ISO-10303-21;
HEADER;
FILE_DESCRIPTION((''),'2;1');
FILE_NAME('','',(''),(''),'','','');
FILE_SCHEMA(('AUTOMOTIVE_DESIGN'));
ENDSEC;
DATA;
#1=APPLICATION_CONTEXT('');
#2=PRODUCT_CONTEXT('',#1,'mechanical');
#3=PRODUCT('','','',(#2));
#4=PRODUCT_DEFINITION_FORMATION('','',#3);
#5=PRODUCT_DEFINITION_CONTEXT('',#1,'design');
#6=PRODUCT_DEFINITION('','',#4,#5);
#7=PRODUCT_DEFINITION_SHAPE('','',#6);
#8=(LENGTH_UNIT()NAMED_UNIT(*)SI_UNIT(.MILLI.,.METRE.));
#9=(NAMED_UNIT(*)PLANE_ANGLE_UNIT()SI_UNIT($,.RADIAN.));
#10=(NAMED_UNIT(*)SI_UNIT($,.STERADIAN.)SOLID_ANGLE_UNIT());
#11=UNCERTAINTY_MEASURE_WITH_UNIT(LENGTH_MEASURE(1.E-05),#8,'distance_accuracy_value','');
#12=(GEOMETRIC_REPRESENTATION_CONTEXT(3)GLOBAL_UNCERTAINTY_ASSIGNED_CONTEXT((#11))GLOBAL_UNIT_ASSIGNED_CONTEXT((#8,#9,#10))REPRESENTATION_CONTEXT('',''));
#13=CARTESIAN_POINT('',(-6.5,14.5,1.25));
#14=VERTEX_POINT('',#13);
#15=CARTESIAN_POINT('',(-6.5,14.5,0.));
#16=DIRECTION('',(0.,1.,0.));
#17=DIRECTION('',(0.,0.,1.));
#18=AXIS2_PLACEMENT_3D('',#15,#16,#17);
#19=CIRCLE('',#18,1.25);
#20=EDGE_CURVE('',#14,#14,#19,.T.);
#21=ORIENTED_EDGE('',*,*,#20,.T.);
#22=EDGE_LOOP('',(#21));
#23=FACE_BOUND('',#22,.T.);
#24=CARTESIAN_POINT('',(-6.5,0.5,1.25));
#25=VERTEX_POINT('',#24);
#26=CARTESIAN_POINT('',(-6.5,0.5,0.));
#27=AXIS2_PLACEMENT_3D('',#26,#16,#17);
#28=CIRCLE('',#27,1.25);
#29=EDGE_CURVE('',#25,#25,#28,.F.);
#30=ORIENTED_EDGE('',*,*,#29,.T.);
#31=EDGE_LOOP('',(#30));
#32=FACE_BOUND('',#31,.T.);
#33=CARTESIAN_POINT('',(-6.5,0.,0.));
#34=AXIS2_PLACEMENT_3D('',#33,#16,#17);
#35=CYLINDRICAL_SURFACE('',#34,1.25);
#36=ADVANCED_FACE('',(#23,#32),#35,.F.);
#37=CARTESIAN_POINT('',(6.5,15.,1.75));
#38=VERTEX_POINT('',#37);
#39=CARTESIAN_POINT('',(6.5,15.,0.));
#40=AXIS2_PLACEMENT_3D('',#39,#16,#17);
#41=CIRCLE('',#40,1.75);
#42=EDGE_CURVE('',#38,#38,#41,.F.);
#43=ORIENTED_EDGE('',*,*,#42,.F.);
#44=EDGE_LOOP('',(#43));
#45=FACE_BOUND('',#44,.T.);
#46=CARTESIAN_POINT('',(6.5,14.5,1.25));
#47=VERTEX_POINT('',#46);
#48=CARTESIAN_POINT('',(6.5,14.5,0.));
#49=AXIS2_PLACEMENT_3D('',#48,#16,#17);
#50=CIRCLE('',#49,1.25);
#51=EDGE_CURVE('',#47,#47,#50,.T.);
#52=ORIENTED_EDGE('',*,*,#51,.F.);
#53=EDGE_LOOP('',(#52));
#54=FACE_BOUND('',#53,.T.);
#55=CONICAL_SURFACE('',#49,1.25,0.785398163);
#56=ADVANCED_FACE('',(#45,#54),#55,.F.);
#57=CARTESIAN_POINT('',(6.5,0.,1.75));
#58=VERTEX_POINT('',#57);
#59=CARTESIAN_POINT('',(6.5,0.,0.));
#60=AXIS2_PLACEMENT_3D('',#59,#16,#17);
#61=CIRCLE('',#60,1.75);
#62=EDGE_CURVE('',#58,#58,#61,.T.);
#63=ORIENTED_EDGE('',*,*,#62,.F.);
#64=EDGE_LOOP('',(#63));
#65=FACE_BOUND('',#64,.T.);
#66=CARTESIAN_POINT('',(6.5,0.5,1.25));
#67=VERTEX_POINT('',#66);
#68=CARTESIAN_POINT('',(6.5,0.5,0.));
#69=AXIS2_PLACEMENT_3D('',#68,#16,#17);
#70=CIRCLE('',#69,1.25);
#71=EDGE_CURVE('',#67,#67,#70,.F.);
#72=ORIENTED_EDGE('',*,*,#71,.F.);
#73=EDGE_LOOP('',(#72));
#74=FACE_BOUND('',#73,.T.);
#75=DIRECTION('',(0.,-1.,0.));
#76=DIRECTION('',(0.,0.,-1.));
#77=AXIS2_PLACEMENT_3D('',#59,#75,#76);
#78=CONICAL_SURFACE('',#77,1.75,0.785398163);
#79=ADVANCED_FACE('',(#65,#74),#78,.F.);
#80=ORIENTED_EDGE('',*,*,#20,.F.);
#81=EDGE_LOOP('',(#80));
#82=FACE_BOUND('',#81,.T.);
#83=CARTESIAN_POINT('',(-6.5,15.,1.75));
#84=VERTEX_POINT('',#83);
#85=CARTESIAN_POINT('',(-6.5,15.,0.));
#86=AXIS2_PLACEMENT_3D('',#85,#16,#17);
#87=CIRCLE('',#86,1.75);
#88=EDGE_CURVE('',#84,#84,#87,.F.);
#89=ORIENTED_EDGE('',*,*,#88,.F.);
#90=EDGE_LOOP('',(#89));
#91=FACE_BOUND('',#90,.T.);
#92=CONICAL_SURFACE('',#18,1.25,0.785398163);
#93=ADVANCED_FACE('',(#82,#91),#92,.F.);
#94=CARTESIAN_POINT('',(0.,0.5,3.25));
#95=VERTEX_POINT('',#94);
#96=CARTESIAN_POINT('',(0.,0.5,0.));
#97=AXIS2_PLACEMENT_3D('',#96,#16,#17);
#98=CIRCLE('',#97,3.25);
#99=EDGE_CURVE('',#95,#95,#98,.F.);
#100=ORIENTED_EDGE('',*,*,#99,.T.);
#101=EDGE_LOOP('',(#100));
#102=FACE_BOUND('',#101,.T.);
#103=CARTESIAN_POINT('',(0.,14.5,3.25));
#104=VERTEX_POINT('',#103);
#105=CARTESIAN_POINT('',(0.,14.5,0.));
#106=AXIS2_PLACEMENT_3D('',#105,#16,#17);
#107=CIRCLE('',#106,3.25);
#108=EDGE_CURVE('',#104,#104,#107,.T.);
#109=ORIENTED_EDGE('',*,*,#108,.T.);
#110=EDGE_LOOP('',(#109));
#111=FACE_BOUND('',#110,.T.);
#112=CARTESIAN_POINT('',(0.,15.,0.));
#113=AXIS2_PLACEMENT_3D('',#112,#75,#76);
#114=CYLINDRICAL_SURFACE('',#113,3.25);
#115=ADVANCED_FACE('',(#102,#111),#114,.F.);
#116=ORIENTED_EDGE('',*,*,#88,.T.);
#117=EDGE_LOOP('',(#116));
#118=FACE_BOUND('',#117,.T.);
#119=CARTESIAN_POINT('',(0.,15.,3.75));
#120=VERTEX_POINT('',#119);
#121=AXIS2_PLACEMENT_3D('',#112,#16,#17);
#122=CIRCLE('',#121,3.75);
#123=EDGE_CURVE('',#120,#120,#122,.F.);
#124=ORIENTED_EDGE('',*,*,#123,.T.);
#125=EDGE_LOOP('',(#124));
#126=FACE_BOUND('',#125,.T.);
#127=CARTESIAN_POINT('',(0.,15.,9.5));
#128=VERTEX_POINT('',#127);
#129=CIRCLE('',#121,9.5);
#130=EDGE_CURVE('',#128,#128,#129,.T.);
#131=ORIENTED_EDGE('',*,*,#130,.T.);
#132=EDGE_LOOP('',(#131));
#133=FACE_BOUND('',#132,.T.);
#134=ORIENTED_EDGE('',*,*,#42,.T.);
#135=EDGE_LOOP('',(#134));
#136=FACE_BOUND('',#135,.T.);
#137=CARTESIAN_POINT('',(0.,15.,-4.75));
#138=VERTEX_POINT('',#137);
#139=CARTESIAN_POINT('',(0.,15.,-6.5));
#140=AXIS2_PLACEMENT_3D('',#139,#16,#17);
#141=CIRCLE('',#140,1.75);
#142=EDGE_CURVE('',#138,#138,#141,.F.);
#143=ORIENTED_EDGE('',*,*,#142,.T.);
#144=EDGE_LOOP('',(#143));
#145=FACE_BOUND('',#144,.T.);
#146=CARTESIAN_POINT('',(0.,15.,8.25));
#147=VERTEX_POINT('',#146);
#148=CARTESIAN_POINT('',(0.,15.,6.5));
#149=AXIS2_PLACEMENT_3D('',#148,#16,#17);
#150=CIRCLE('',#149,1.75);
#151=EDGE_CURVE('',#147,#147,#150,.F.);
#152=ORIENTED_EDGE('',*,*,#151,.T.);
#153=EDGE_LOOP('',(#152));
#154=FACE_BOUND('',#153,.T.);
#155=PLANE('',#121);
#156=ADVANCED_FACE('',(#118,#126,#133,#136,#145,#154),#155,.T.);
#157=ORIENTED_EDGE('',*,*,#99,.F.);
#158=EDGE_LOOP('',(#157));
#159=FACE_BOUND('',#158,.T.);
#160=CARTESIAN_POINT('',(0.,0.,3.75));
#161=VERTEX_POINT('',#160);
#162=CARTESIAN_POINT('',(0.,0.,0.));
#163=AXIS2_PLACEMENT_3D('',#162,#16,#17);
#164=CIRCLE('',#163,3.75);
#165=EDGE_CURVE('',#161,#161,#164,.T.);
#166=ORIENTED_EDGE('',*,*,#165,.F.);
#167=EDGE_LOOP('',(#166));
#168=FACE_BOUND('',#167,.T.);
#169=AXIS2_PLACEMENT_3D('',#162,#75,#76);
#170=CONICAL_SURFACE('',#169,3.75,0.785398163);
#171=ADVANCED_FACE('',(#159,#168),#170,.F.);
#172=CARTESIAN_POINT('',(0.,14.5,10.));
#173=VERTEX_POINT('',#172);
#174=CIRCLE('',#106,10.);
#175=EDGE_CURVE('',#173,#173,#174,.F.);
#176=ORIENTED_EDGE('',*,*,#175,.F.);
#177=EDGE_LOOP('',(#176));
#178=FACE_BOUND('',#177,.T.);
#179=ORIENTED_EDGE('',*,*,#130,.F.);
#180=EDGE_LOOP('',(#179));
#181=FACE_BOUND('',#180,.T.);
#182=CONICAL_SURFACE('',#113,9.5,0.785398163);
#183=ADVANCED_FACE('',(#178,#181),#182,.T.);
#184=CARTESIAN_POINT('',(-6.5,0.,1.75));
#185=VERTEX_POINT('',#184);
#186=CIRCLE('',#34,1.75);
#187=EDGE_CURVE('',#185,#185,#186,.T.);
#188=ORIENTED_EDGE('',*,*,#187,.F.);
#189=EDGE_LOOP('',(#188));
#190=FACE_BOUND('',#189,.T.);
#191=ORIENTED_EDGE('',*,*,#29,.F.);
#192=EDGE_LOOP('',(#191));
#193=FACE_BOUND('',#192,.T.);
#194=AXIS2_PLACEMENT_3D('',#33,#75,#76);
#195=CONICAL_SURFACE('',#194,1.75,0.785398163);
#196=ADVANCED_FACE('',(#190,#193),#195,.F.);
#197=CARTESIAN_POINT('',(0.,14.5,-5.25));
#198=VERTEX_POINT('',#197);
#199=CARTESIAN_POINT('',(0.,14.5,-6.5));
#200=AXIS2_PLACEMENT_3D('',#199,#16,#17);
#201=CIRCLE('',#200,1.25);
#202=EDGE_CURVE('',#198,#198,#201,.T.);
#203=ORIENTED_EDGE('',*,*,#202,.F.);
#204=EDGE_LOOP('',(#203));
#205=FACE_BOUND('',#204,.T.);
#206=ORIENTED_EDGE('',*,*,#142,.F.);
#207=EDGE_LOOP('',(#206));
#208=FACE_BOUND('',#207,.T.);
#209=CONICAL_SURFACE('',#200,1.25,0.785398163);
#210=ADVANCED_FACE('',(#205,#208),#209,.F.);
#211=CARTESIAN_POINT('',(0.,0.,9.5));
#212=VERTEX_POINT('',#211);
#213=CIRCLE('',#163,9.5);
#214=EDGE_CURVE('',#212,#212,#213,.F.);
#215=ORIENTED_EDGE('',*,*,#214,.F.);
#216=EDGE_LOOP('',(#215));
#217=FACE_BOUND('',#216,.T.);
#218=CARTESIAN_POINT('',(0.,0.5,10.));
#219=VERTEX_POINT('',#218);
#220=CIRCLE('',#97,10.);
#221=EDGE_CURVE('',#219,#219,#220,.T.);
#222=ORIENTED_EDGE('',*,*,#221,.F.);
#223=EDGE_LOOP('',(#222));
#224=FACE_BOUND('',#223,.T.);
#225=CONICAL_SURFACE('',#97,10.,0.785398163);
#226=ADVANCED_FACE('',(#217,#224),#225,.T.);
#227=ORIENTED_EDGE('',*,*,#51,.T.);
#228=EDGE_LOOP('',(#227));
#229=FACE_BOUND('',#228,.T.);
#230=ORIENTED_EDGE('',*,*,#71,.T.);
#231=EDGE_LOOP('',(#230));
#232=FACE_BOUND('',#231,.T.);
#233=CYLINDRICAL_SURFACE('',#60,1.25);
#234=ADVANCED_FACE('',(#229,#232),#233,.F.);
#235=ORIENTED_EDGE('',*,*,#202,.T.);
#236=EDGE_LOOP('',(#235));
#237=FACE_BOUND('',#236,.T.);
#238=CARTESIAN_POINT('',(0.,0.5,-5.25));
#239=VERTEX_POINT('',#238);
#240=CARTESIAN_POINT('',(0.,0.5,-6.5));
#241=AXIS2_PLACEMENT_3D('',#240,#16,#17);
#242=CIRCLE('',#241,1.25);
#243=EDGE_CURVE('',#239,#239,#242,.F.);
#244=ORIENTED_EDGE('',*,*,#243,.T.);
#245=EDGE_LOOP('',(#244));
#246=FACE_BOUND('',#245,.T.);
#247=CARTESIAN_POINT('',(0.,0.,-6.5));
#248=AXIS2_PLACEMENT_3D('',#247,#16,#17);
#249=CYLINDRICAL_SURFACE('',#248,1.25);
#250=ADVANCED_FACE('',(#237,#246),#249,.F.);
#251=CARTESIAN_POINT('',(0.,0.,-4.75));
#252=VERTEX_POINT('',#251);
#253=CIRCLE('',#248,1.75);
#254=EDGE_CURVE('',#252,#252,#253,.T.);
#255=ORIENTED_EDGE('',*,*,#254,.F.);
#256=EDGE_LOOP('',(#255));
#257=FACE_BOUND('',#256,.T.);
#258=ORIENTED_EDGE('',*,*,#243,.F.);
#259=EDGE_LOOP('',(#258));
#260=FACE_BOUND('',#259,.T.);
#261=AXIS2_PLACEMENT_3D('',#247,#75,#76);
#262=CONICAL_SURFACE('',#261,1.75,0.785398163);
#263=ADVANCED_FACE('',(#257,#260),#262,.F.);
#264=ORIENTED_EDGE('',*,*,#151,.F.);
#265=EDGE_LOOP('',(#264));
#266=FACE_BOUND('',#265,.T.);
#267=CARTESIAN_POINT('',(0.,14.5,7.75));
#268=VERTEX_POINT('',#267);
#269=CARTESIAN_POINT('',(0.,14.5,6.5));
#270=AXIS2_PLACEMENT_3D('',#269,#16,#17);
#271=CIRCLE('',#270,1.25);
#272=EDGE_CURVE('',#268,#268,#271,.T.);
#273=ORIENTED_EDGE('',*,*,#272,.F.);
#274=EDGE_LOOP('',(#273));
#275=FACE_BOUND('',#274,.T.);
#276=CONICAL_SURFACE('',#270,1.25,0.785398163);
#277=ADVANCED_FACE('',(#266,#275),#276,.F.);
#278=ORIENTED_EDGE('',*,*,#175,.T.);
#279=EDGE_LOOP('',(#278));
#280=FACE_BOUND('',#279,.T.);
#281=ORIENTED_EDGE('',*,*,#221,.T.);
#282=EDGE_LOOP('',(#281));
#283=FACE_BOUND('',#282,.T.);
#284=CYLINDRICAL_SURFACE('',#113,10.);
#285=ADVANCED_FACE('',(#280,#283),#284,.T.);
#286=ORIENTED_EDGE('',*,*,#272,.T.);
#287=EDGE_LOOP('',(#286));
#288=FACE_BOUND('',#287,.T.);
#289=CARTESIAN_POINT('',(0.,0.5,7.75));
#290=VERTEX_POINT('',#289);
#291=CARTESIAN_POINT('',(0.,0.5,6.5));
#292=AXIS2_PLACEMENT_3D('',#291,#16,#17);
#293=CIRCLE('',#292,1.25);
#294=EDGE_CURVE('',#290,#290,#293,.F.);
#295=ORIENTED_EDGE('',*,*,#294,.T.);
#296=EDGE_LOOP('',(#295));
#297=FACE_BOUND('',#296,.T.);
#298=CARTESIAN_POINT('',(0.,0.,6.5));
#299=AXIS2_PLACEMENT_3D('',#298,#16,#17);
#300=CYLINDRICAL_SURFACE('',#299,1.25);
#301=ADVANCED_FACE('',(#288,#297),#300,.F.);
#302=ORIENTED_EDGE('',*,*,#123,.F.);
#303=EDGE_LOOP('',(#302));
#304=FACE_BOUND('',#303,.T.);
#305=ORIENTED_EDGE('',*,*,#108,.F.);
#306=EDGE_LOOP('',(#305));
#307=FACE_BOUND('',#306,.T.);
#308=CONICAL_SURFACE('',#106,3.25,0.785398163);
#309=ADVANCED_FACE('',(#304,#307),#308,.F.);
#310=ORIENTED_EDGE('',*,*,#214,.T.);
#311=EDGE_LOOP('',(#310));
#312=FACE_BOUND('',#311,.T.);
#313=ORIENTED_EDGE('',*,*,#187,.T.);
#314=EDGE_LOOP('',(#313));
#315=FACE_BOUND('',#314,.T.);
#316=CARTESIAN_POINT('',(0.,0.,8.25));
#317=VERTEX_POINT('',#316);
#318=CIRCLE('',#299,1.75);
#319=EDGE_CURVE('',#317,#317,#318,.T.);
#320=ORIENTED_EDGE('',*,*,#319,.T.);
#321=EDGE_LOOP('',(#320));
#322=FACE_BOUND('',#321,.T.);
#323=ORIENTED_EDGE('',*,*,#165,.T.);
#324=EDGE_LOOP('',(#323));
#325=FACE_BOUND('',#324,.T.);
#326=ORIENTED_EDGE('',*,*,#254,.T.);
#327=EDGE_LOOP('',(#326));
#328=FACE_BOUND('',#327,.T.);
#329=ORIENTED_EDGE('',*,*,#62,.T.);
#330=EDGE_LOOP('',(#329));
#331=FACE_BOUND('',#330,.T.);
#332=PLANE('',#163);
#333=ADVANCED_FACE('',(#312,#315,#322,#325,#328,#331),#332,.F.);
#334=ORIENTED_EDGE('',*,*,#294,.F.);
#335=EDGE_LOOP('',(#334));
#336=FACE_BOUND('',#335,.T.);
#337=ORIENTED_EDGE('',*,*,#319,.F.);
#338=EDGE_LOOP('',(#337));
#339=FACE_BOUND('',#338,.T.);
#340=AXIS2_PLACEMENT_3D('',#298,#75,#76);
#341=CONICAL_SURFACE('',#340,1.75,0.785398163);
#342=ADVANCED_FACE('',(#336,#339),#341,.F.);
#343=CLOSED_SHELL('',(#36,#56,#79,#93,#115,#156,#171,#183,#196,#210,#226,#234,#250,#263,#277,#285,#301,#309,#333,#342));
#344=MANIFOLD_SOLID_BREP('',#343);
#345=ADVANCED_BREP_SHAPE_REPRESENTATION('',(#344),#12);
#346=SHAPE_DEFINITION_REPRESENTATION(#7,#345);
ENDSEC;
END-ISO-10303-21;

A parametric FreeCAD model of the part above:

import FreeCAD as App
import Part
import Sketcher


def edges_at(feature, points):
    """Names of the edges that pass closest to the given points."""
    edges = feature.Shape.Edges
    near = lambda p: min(range(len(edges)), key=lambda i: edges[i].distToShape(Part.Vertex(*p))[0])
    return sorted({f"Edge{near(p) + 1}" for p in points})

doc = App.newDocument("Part")
body = doc.addObject("PartDesign::Body", "Body")

sketch1 = body.newObject("Sketcher::SketchObject", "Sketch")
sketch1.AttachmentSupport = (doc.getObject("XZ_Plane"), [""])
sketch1.MapMode = "FlatFace"
sketch1.addGeometry([
    Part.Circle(App.Vector(0, 0, 0), App.Vector(0, 0, 1), 10),
    Part.Circle(App.Vector(0, 0, 0), App.Vector(0, 0, 1), 3.2),
], False)
sketch1.addConstraint([
    Sketcher.Constraint("Coincident", 0, 3, -1, 1),
    Sketcher.Constraint("Coincident", 1, 3, -1, 1),
    Sketcher.Constraint("Diameter", 0, 20.0),
    Sketcher.Constraint("Diameter", 1, 6.5),
])
pad1 = body.newObject("PartDesign::Pad", "Pad")
pad1.Profile = sketch1
pad1.Length = 15
pad1.Reversed = True

sketch2 = body.newObject("Sketcher::SketchObject", "Sketch001")
sketch2.AttachmentSupport = (doc.getObject("XZ_Plane"), [""])
sketch2.MapMode = "FlatFace"
sketch2.AttachmentOffset = App.Placement(App.Vector(0, 0, -15), App.Rotation())
sketch2.addGeometry(Part.Circle(App.Vector(-6.5, 0, 0), App.Vector(0, 0, 1), 1.2), False)
sketch2.addConstraint([
    Sketcher.Constraint("PointOnObject", 0, 3, -1),
    Sketcher.Constraint("Diameter", 0, 2.5),
    Sketcher.Constraint("DistanceX", 0, 3, -1, 1, 6.5),
])
pocket1 = body.newObject("PartDesign::Pocket", "Pocket")
pocket1.Profile = sketch2
pocket1.Length = 15
pocket1.Reversed = True
doc.recompute()

polarpattern = body.newObject("PartDesign::PolarPattern", "PolarPattern")
polarpattern.Originals = [pocket1]
polarpattern.Axis = (doc.getObject("Y_Axis"), [""])
polarpattern.Angle = 360
polarpattern.Occurrences = 4
body.Tip = polarpattern
doc.recompute()

chamfer = body.newObject("PartDesign::Chamfer", "Chamfer")
chamfer.Base = (polarpattern, edges_at(polarpattern, [
    (-6.5, 0, -1.25),
    (-6.5, 15, -1.25),
    (1.25, 0, -6.5),
    (1.25, 15, -6.5),
    (0, 0, -10),
    (6.5, 0, 1.25),
    (6.5, 15, 1.25),
    (-1.25, 0, 6.5),
    (-1.25, 15, 6.5),
    (0, 15, -10),
    (0, 0, -3.25),
    (0, 15, -3.25),
]))
chamfer.Size = 0.5

doc.recompute()
